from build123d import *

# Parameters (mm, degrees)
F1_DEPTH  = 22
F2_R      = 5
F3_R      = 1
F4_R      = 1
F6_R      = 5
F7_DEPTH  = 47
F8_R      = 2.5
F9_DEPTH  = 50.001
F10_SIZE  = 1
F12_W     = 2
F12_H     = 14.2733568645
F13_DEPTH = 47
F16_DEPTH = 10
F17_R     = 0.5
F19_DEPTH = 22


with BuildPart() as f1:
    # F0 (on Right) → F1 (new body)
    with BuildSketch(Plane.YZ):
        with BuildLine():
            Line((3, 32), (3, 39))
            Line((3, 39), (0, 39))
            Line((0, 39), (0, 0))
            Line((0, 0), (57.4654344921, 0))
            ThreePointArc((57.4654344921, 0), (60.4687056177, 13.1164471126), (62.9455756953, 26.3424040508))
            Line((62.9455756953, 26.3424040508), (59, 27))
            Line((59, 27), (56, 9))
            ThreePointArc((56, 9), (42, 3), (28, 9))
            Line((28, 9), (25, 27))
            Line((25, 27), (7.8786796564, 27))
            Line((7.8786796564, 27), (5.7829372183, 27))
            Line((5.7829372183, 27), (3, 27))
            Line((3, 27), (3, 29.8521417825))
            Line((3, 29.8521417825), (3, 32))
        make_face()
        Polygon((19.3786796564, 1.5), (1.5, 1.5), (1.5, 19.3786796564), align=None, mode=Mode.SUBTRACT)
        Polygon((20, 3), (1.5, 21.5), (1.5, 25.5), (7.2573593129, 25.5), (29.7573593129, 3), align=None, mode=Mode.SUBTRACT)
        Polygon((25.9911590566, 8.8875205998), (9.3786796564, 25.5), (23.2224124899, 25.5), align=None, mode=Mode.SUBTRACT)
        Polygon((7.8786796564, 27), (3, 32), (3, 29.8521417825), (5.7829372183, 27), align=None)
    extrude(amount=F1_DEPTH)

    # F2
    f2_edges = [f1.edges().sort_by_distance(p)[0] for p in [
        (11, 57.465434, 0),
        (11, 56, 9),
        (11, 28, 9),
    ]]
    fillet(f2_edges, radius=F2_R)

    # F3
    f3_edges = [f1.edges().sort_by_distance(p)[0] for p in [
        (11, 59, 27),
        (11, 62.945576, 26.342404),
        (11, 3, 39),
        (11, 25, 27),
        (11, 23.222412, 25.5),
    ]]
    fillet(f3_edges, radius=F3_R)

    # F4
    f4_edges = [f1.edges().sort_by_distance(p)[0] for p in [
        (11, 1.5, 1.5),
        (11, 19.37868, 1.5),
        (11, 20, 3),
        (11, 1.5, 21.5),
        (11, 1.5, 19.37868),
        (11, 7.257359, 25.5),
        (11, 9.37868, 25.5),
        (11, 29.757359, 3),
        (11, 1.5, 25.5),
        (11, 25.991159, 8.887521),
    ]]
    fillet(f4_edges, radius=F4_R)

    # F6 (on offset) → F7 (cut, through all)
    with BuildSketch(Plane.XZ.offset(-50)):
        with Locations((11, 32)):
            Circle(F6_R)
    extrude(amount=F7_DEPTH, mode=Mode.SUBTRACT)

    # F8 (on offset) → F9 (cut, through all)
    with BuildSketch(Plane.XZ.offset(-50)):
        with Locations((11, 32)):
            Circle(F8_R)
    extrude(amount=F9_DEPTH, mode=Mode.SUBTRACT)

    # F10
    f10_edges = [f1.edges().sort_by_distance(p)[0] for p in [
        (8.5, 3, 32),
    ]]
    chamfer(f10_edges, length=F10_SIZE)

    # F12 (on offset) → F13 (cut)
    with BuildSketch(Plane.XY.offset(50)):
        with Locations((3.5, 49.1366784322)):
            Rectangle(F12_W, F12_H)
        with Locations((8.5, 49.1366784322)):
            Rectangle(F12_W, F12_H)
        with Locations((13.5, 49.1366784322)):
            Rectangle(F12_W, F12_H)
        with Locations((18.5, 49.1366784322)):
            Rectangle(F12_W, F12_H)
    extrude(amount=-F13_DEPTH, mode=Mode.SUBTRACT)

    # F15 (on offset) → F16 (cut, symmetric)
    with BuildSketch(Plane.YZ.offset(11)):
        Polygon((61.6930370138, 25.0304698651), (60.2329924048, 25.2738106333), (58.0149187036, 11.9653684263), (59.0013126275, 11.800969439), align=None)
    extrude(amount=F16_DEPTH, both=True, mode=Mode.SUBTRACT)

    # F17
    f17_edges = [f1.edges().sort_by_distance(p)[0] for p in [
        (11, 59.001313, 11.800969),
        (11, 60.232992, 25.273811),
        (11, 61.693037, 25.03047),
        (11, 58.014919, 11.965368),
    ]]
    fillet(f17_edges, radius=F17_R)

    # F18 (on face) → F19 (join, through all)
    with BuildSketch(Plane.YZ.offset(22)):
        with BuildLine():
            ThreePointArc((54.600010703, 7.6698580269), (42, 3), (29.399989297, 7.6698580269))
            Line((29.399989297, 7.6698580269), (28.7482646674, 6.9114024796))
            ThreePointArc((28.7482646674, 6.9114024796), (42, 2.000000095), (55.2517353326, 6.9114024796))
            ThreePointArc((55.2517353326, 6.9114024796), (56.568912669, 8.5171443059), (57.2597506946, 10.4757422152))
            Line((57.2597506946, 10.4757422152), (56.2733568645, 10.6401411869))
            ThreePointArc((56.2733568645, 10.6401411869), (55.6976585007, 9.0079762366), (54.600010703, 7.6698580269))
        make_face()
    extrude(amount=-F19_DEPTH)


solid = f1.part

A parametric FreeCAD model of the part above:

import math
import FreeCAD as App
import Part
import Sketcher

V = App.Vector
Q = App.Units.Quantity


def edges_at(feature, points):
    """Names of the edges that pass closest to the given points."""
    edges = feature.Shape.Edges
    near = lambda p: min(range(len(edges)), key=lambda i: edges[i].distToShape(Part.Vertex(*p))[0])
    return sorted({f"Edge{near(p) + 1}" for p in points})


def add_polygon(sketch, points):
    """Adds a closed chain of lines whose ends are joined by coincident constraints."""
    first, n = sketch.GeometryCount, len(points)
    for a, b in zip(points, points[1:] + points[:1]):
        sketch.addGeometry(Part.LineSegment(App.Vector(*a, 0), App.Vector(*b, 0)), False)
    for i in range(n):
        sketch.addConstraint(Sketcher.Constraint("Coincident", first + i, 2, first + (i + 1) % n, 1))

doc = App.newDocument("Part")
body = doc.addObject("PartDesign::Body", "Body")

sketch1 = body.newObject("Sketcher::SketchObject", "Sketch")
sketch1.AttachmentSupport = (doc.getObject("YZ_Plane"), [""])
sketch1.MapMode = "FlatFace"
sketch1.addGeometry(Part.LineSegment(V(3, 39, 0), V(0, 39, 0)), False)
sketch1.addGeometry(Part.LineSegment(V(0, 39, 0), V(0, 0, 0)), False)
sketch1.addGeometry(Part.LineSegment(V(0, 0, 0), V(57.5, 0, 0)), False)
sketch1.addGeometry(Part.ArcOfCircle(Part.Circle(V(-269.2, 81.7, 0), V(0, 0, 1), 336.8), math.radians(-14.04), math.radians(-9.46)), False)
sketch1.addGeometry(Part.LineSegment(V(62.9, 26.3, 0), V(59, 27, 0)), False)
sketch1.addGeometry(Part.LineSegment(V(59, 27, 0), V(56, 9, 0)), False)
sketch1.addGeometry(Part.ArcOfCircle(Part.Circle(V(42, 22.3, 0), V(0, 0, 1), 19.3), math.radians(-136), math.radians(-44)), False)
sketch1.addGeometry(Part.LineSegment(V(28, 9, 0), V(25, 27, 0)), False)
sketch1.addGeometry(Part.LineSegment(V(25, 27, 0), V(7.9, 27, 0)), False)
sketch1.addGeometry(Part.LineSegment(V(7.9, 27, 0), V(3, 32, 0)), False)
sketch1.addGeometry(Part.LineSegment(V(3, 32, 0), V(3, 39, 0)), False)
add_polygon(sketch1, [(3, 27), (3, 29.9), (5.8, 27)])
add_polygon(sketch1, [(1.5, 19.4), (19.4, 1.5), (1.5, 1.5)])
add_polygon(sketch1, [(29.8, 3), (20, 3), (1.5, 21.5), (1.5, 25.5), (7.3, 25.5)])
add_polygon(sketch1, [(23.2, 25.5), (26, 8.9), (9.4, 25.5)])
sketch1.addConstraint([
    Sketcher.Constraint("Coincident", 0, 2, 1, 1),
    Sketcher.Constraint("Coincident", 1, 2, 2, 1),
    Sketcher.Constraint("Coincident", 2, 2, 3, 1),
    Sketcher.Constraint("Coincident", 3, 2, 4, 1),
    Sketcher.Constraint("Coincident", 4, 2, 5, 1),
    Sketcher.Constraint("Coincident", 5, 2, 6, 2),
    Sketcher.Constraint("Coincident", 6, 1, 7, 1),
    Sketcher.Constraint("Coincident", 7, 2, 8, 1),
    Sketcher.Constraint("Coincident", 8, 2, 9, 1),
    Sketcher.Constraint("Coincident", 9, 2, 10, 1),
    Sketcher.Constraint("Coincident", 10, 2, 0, 1),
    Sketcher.Constraint("Horizontal", 0),
    Sketcher.Constraint("Vertical", 1),
    Sketcher.Constraint("Horizontal", 2),
    Sketcher.Constraint("Horizontal", 8),
    Sketcher.Constraint("Vertical", 10),
    Sketcher.Constraint("Vertical", 11),
    Sketcher.Constraint("Horizontal", 13),
    Sketcher.Constraint("Horizontal", 15),
    Sketcher.Constraint("Vertical", 16),
    Sketcher.Constraint("Horizontal", 17),
    Sketcher.Constraint("Vertical", 19),
    Sketcher.Constraint("Horizontal", 20),
    Sketcher.Constraint("Horizontal", 24),
    Sketcher.Constraint("Coincident", 1, 2, -1, 1),
    Sketcher.Constraint("Perpendicular", 4, 5),
    Sketcher.Constraint("Parallel", 9, 12),
    Sketcher.Constraint("Parallel", 14, 18),
    Sketcher.Constraint("Parallel", 18, 21),
    Sketcher.Constraint("Parallel", 7, 22),
    Sketcher.Constraint("Parallel", 21, 23),
    Sketcher.Constraint("Horizontal", 5, 2, 6, 1),
    Sketcher.Constraint("Horizontal", 4, 2, 7, 2),
    Sketcher.Constraint("Horizontal", 8, 2, 12, 2),
    Sketcher.Constraint("Horizontal", 20, 2, 23, 2),
    Sketcher.Constraint("Vertical", 10, 2, 11, 2),
    Sketcher.Constraint("Vertical", 16, 2, 18, 2),
    Sketcher.Constraint("Equal", 15, 16),
    Sketcher.Constraint("Equal", 5, 7),
    Sketcher.Constraint("DistanceX", 0, 2, 0, 1, Q("3 mm")),
    Sketcher.Constraint("DistanceY", 1, 2, 1, 1, Q("39 mm")),
    Sketcher.Constraint("DistanceY", 10, 1, 10, 2, Q("7 mm")),
    Sketcher.Constraint("DistanceY", 19, 1, 19, 2, Q("4 mm")),
    Sketcher.Constraint("Radius", 3, Q("336.75 mm")),
    Sketcher.Constraint("Distance", 4, Q("4 mm")),
    Sketcher.Constraint("DistanceX", -1, 1, 6, 3, Q("42 mm")),
    Sketcher.Constraint("DistanceX", -1, 1, 4, 2, Q("59 mm")),
    Sketcher.Constraint("DistanceY", -1, 1, 4, 2, Q("27 mm")),
    Sketcher.Constraint("DistanceX", -1, 1, 5, 2, Q("56 mm")),
    Sketcher.Constraint("DistanceY", -1, 1, 5, 2, Q("9 mm")),
    Sketcher.Constraint("DistanceX", -1, 1, 17, 2, Q("20 mm")),
    Sketcher.Constraint("DistanceY", -1, 1, 17, 2, Q("3 mm")),
    Sketcher.Constraint("DistanceY", -1, 1, 14, 2, Q("1.5 mm")),
    Sketcher.Constraint("DistanceX", -1, 1, 15, 2, Q("1.5 mm")),
    Sketcher.Constraint("DistanceX", 8, 2, 14, 2, Q("11.5 mm")),
    Sketcher.Constraint("DistanceX", 8, 2, 23, 2, Q("1.5 mm")),
    Sketcher.Constraint("Radius", 6, Q("19.333333 mm")),
    Sketcher.Constraint("DistanceX", 8, 2, 8, 1, Q("17.12132 mm")),
    Sketcher.Constraint("DistanceX", 17, 2, 17, 1, Q("9.757359 mm")),
    Sketcher.Constraint("DistanceY", 11, 1, 11, 2, Q("2.852142 mm")),
    Sketcher.Constraint("DistanceX", 22, 2, 21, 2, Q("3.7662 mm")),
    Sketcher.Constraint("DistanceX", 2, 1, 2, 2, Q("57.465434 mm")),
])
pad1 = body.newObject("PartDesign::Pad", "Pad")
pad1.Profile = sketch1
pad1.Length = 22
doc.recompute()

fillet = body.newObject("PartDesign::Fillet", "Fillet")
fillet.Base = (pad1, edges_at(pad1, [(11, 57.465, 0), (11, 56, 9), (11, 28, 9)]))
fillet.Radius = 5
doc.recompute()

fillet2 = body.newObject("PartDesign::Fillet", "Fillet001")
fillet2.Base = (fillet, edges_at(fillet, [
    (11, 59, 27),
    (11, 62.946, 26.342),
    (11, 3, 39),
    (11, 25, 27),
    (11, 23.222, 25.5),
]))
fillet2.Radius = 1
doc.recompute()

fillet3 = body.newObject("PartDesign::Fillet", "Fillet002")
fillet3.Base = (fillet2, edges_at(fillet2, [
    (11, 1.5, 1.5),
    (11, 19.379, 1.5),
    (11, 20, 3),
    (11, 1.5, 21.5),
    (11, 1.5, 19.379),
    (11, 7.257, 25.5),
    (11, 9.379, 25.5),
    (11, 29.757, 3),
    (11, 1.5, 25.5),
    (11, 25.991, 8.888),
]))
fillet3.Radius = 1

sketch2 = body.newObject("Sketcher::SketchObject", "Sketch001")
sketch2.AttachmentSupport = (doc.getObject("XZ_Plane"), [""])
sketch2.MapMode = "FlatFace"
sketch2.AttachmentOffset = App.Placement(V(0, 0, -50), App.Rotation())
sketch2.addGeometry(Part.Circle(V(11, 32, 0), V(0, 0, 1), 5), False)
sketch2.addConstraint([
    Sketcher.Constraint("Diameter", 0, Q("10 mm")),
    Sketcher.Constraint("DistanceX", -1, 1, 0, 3, Q("11 mm")),
    Sketcher.Constraint("DistanceY", -1, 1, 0, 3, Q("32 mm")),
])
pocket1 = body.newObject("PartDesign::Pocket", "Pocket")
pocket1.Profile = sketch2
pocket1.Length = 47
pocket1.Reversed = True

sketch3 = body.newObject("Sketcher::SketchObject", "Sketch002")
sketch3.AttachmentSupport = (doc.getObject("XZ_Plane"), [""])
sketch3.MapMode = "FlatFace"
sketch3.AttachmentOffset = App.Placement(V(0, 0, -50), App.Rotation())
sketch3.addGeometry(Part.Circle(V(11, 32, 0), V(0, 0, 1), 2.5), False)
sketch3.addConstraint([
    Sketcher.Constraint("Diameter", 0, Q("5 mm")),
    Sketcher.Constraint("DistanceX", -1, 1, 0, 3, Q("11 mm")),
    Sketcher.Constraint("DistanceY", -1, 1, 0, 3, Q("32 mm")),
])
pocket2 = body.newObject("PartDesign::Pocket", "Pocket001")
pocket2.Profile = sketch3
pocket2.Type = "ThroughAll"
pocket2.Reversed = True
doc.recompute()

chamfer = body.newObject("PartDesign::Chamfer", "Chamfer")
chamfer.Base = (pocket2, edges_at(pocket2, [(8.5, 3, 32)]))
chamfer.Size = 1

sketch4 = body.newObject("Sketcher::SketchObject", "Sketch003")
sketch4.AttachmentSupport = (doc.getObject("XY_Plane"), [""])
sketch4.MapMode = "FlatFace"
sketch4.AttachmentOffset = App.Placement(V(0, 0, 50), App.Rotation())
add_polygon(sketch4, [(2.5, 56.3), (2.5, 42), (4.5, 42), (4.5, 56.3)])
add_polygon(sketch4, [(7.5, 56.3), (7.5, 42), (9.5, 42), (9.5, 56.3)])
add_polygon(sketch4, [(12.5, 56.3), (12.5, 42), (14.5, 42), (14.5, 56.3)])
add_polygon(sketch4, [(17.5, 56.3), (17.5, 42), (19.5, 42), (19.5, 56.3)])
sketch4.addConstraint([
    Sketcher.Constraint("Vertical", 0),
    Sketcher.Constraint("Horizontal", 1),
    Sketcher.Constraint("Vertical", 2),
    Sketcher.Constraint("Horizontal", 3),
    Sketcher.Constraint("Vertical", 4),
    Sketcher.Constraint("Horizontal", 5),
    Sketcher.Constraint("Vertical", 6),
    Sketcher.Constraint("Horizontal", 7),
    Sketcher.Constraint("Vertical", 8),
    Sketcher.Constraint("Horizontal", 9),
    Sketcher.Constraint("Vertical", 10),
    Sketcher.Constraint("Horizontal", 11),
    Sketcher.Constraint("Vertical", 12),
    Sketcher.Constraint("Horizontal", 13),
    Sketcher.Constraint("Vertical", 14),
    Sketcher.Constraint("Horizontal", 15),
    Sketcher.Constraint("Horizontal", 1, 2, 4, 2),
    Sketcher.Constraint("Horizontal", 3, 2, 6, 2),
    Sketcher.Constraint("Horizontal", 5, 2, 8, 2),
    Sketcher.Constraint("Horizontal", 7, 2, 10, 2),
    Sketcher.Constraint("Horizontal", 9, 2, 12, 2),
    Sketcher.Constraint("Horizontal", 11, 2, 14, 2),
    Sketcher.Constraint("Equal", 3, 5),
    Sketcher.Constraint("Equal", 7, 9),
    Sketcher.Constraint("Equal", 11, 13),
    Sketcher.Constraint("DistanceX", 1, 1, 1, 2, Q("2 mm")),
    Sketcher.Constraint("DistanceY", -1, 1, 0, 2, Q("42 mm")),
    Sketcher.Constraint("DistanceX", 1, 2, 4, 2, Q("3 mm")),
    Sketcher.Constraint("DistanceX", 5, 2, 8, 2, Q("3 mm")),
    Sketcher.Constraint("DistanceX", 9, 2, 12, 2, Q("3 mm")),
    Sketcher.Constraint("DistanceX", -1, 1, 0, 2, Q("2.5 mm")),
    Sketcher.Constraint("DistanceY", 0, 2, 0, 1, Q("14.273357 mm")),
])
pocket3 = body.newObject("PartDesign::Pocket", "Pocket002")
pocket3.Profile = sketch4
pocket3.Length = 47

sketch5 = body.newObject("Sketcher::SketchObject", "Sketch004")
sketch5.AttachmentSupport = (doc.getObject("YZ_Plane"), [""])
sketch5.MapMode = "FlatFace"
sketch5.AttachmentOffset = App.Placement(V(0, 0, 11), App.Rotation())
add_polygon(sketch5, [(61.7, 25), (60.2, 25.3), (58, 12), (59, 11.8)])
sketch5.addConstraint([
    Sketcher.Constraint("Perpendicular", 0, 1),
    Sketcher.Constraint("Perpendicular", 1, 2),
    Sketcher.Constraint("Distance", 2, Q("1 mm")),
    Sketcher.Constraint("DistanceY", 2, 2, 1, 2, Q("0.164399 mm")),
    Sketcher.Constraint("DistanceY", 2, 2, 3, 2, Q("13.2295 mm")),
    Sketcher.Constraint("DistanceY", -1, 1, 0, 2, Q("25.273811 mm")),
    Sketcher.Constraint("DistanceX", -1, 1, 1, 2, Q("58.014919 mm")),
    Sketcher.Constraint("DistanceY", -1, 1, 1, 2, Q("11.965368 mm")),
])
pocket4 = body.newObject("PartDesign::Pocket", "Pocket003")
pocket4.Profile = sketch5
pocket4.Length = 20
pocket4.Midplane = True
doc.recompute()

fillet4 = body.newObject("PartDesign::Fillet", "Fillet003")
fillet4.Base = (pocket4, edges_at(pocket4, [
    (11, 59.001, 11.801),
    (11, 60.233, 25.274),
    (11, 61.693, 25.03),
    (11, 58.015, 11.965),
]))
fillet4.Radius = 0.5

sketch6 = body.newObject("Sketcher::SketchObject", "Sketch005")
sketch6.AttachmentSupport = (doc.getObject("YZ_Plane"), [""])
sketch6.MapMode = "FlatFace"
sketch6.AttachmentOffset = App.Placement(V(0, 0, 22), App.Rotation())
sketch6.addGeometry([
    Part.ArcOfCircle(Part.Circle(V(42, 22.3, 0), V(0, 0, 1), 19.3), math.radians(-131), math.radians(-49)),
    Part.LineSegment(V(29.4, 7.7, 0), V(28.7, 6.9, 0)),
    Part.ArcOfCircle(Part.Circle(V(42, 22.3, 0), V(0, 0, 1), 20.3), math.radians(-131), math.radians(-49)),
    Part.ArcOfCircle(Part.Circle(V(51.3, 11.5, 0), V(0, 0, 1), 6), math.radians(-49), math.radians(-9)),
    Part.LineSegment(V(57.3, 10.5, 0), V(56.3, 10.6, 0)),
    Part.ArcOfCircle(Part.Circle(V(51.3, 11.5, 0), V(0, 0, 1), 5), math.radians(-49), math.radians(-9)),
], False)
sketch6.addConstraint([
    Sketcher.Constraint("Coincident", 0, 1, 1, 1),
    Sketcher.Constraint("Coincident", 1, 2, 2, 1),
    Sketcher.Constraint("Tangent", 2, 2, 3, 1),
    Sketcher.Constraint("Coincident", 3, 2, 4, 1),
    Sketcher.Constraint("Coincident", 4, 2, 5, 2),
    Sketcher.Constraint("Tangent", 5, 1, 0, 2),
    Sketcher.Constraint("Coincident", 2, 3, 0, 3),
    Sketcher.Constraint("Coincident", 5, 3, 3, 3),
    Sketcher.Constraint("Horizontal", 1, 2, 2, 2),
    Sketcher.Constraint("Horizontal", 0, 1, 5, 1),
    Sketcher.Constraint("Radius", 3, Q("6 mm")),
    Sketcher.Constraint("Radius", 5, Q("5 mm")),
    Sketcher.Constraint("DistanceX", -1, 1, 0, 3, Q("42 mm")),
    Sketcher.Constraint("Radius", 0, Q("19.333333 mm")),
    Sketcher.Constraint("DistanceY", 3, 2, 4, 2, Q("0.164399 mm")),
    Sketcher.Constraint("DistanceX", -1, 1, 0, 1, Q("29.399989 mm")),
    Sketcher.Constraint("DistanceY", -1, 1, 0, 1, Q("7.669858 mm")),
    Sketcher.Constraint("DistanceX", -1, 1, 3, 2, Q("57.259751 mm")),
])
pad2 = body.newObject("PartDesign::Pad", "Pad001")
pad2.Profile = sketch6
pad2.Length = 22
pad2.Reversed = True

doc.recompute()
